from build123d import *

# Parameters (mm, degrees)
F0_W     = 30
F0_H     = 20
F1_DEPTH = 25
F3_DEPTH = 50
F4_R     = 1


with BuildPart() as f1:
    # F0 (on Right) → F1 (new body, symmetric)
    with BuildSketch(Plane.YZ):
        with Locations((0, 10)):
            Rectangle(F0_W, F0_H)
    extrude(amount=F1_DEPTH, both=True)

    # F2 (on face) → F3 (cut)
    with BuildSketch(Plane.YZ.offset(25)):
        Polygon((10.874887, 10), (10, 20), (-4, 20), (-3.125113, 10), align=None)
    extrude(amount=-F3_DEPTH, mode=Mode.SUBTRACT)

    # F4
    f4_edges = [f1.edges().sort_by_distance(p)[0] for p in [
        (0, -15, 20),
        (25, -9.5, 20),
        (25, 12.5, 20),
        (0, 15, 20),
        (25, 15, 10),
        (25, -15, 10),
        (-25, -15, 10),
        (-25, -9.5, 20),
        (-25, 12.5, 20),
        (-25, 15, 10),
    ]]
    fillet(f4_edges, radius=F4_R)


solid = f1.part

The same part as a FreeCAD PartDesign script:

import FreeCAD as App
import Part
import Sketcher
from FreeCAD import Vector
Q = App.Units.Quantity


def edges_at(feature, points):
    """Names of the edges that pass closest to the given points."""
    edges = feature.Shape.Edges
    near = lambda p: min(range(len(edges)), key=lambda i: edges[i].distToShape(Part.Vertex(*p))[0])
    return sorted({f"Edge{near(p) + 1}" for p in points})

doc = App.newDocument("Part")
body = doc.addObject("PartDesign::Body", "Body")

sketch1 = body.newObject("Sketcher::SketchObject", "Sketch")
sketch1.AttachmentSupport = (doc.getObject("YZ_Plane"), [""])
sketch1.MapMode = "FlatFace"
sketch1.addGeometry([
    Part.LineSegment(Vector(-15, 20, 0), Vector(-15, 0, 0)),
    Part.LineSegment(Vector(-15, 0, 0), Vector(15, 0, 0)),
    Part.LineSegment(Vector(15, 0, 0), Vector(15, 20, 0)),
    Part.LineSegment(Vector(15, 20, 0), Vector(-15, 20, 0)),
], False)
sketch1.addConstraint([
    Sketcher.Constraint("Coincident", 0, 2, 1, 1),
    Sketcher.Constraint("Coincident", 1, 2, 2, 1),
    Sketcher.Constraint("Coincident", 2, 2, 3, 1),
    Sketcher.Constraint("Coincident", 3, 2, 0, 1),
    Sketcher.Constraint("Vertical", 0),
    Sketcher.Constraint("Horizontal", 1),
    Sketcher.Constraint("Vertical", 2),
    Sketcher.Constraint("Horizontal", 3),
    Sketcher.Constraint("Symmetric", 0, 2, 1, 2, -1, 1),
    Sketcher.Constraint("DistanceX", 1, 1, 1, 2, 30.0),
    Sketcher.Constraint("DistanceY", 0, 2, 0, 1, 20.0),
])
pad1 = body.newObject("PartDesign::Pad", "Pad")
pad1.Profile = sketch1
pad1.Length = 50
pad1.Midplane = True

sketch2 = body.newObject("Sketcher::SketchObject", "Sketch001")
sketch2.AttachmentSupport = (doc.getObject("YZ_Plane"), [""])
sketch2.MapMode = "FlatFace"
sketch2.AttachmentOffset = App.Placement(Vector(0, 0, 25), App.Rotation())
sketch2.addGeometry([
    Part.LineSegment(Vector(10.874887, 10, 0), Vector(10, 20, 0)),
    Part.LineSegment(Vector(10, 20, 0), Vector(-4, 20, 0)),
    Part.LineSegment(Vector(-4, 20, 0), Vector(-3.125113, 10, 0)),
    Part.LineSegment(Vector(-3.125113, 10, 0), Vector(10.874887, 10, 0)),
], False)
sketch2.addConstraint([
    Sketcher.Constraint("Coincident", 0, 2, 1, 1),
    Sketcher.Constraint("Coincident", 1, 2, 2, 1),
    Sketcher.Constraint("Coincident", 2, 2, 3, 1),
    Sketcher.Constraint("Coincident", 3, 2, 0, 1),
    Sketcher.Constraint("Horizontal", 1),
    Sketcher.Constraint("Horizontal", 3),
    Sketcher.Constraint("Parallel", 0, 2),
    Sketcher.Constraint("DistanceX", 1, 2, 1, 1, 14.0),
    Sketcher.Constraint("Angle", 0, Q("95.000002 deg")),
    Sketcher.Constraint("DistanceX", -1, 1, 0, 2, 10.0),
    Sketcher.Constraint("DistanceY", -1, 1, 0, 2, 20.0),
    Sketcher.Constraint("DistanceY", -1, 1, 2, 2, 10.0),
])
pocket1 = body.newObject("PartDesign::Pocket", "Pocket")
pocket1.Profile = sketch2
pocket1.Length = 50
doc.recompute()

fillet = body.newObject("PartDesign::Fillet", "Fillet")
fillet.Base = (pocket1, edges_at(pocket1, [
    (0, -15, 20),
    (25, -9.5, 20),
    (25, 12.5, 20),
    (0, 15, 20),
    (25, 15, 10),
    (25, -15, 10),
    (-25, -15, 10),
    (-25, -9.5, 20),
    (-25, 12.5, 20),
    (-25, 15, 10),
]))
fillet.Radius = 1

doc.recompute()
